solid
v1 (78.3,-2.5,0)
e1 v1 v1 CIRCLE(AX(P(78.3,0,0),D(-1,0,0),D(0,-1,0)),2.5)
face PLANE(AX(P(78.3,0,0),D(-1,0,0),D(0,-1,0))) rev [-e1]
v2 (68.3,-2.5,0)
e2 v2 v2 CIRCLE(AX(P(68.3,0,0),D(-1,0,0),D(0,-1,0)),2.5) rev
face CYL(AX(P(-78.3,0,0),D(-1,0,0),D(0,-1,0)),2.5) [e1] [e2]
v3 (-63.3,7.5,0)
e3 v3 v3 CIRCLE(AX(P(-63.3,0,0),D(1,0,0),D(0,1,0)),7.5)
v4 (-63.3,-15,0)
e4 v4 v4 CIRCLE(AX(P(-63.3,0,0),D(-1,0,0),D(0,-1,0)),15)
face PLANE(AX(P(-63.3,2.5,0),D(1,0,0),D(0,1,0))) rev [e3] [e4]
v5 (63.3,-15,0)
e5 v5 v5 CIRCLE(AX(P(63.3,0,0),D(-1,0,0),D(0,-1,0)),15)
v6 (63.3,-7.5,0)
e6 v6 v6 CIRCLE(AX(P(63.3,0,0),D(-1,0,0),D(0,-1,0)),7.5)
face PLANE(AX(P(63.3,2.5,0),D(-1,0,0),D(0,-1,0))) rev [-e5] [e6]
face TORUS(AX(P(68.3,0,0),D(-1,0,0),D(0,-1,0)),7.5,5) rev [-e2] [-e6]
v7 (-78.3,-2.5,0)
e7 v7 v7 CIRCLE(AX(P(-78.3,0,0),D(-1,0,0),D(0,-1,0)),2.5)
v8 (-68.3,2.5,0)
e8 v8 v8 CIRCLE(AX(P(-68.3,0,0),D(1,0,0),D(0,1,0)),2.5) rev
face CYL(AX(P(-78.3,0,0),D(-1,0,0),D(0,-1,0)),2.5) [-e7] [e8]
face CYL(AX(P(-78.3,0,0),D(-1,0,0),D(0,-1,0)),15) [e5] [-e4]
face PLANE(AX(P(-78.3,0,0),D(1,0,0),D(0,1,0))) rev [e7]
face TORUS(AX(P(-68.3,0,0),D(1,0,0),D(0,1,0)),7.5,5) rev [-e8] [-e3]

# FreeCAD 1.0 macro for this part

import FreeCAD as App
import Part
import Sketcher
from FreeCAD import Vector


def edges_at(feature, points):
    """Names of the edges that pass closest to the given points."""
    edges = feature.Shape.Edges
    near = lambda p: min(range(len(edges)), key=lambda i: edges[i].distToShape(Part.Vertex(*p))[0])
    return sorted({f"Edge{near(p) + 1}" for p in points})


def add_polygon(sketch, points):
    """Adds a closed chain of lines whose ends are joined by coincident constraints."""
    first, n = sketch.GeometryCount, len(points)
    for a, b in zip(points, points[1:] + points[:1]):
        sketch.addGeometry(Part.LineSegment(App.Vector(*a, 0), App.Vector(*b, 0)), False)
    for i in range(n):
        sketch.addConstraint(Sketcher.Constraint("Coincident", first + i, 2, first + (i + 1) % n, 1))

doc = App.newDocument("Part")
body = doc.addObject("PartDesign::Body", "Body")

# Sketch on XY plane
sketch1 = body.newObject("Sketcher::SketchObject", "Sketch")
sketch1.AttachmentSupport = (doc.getObject("XY_Plane"), [""])
sketch1.MapMode = "FlatFace"
add_polygon(sketch1, [(-78.3, 2.5), (-78.3, 0), (78.3, 0), (78.3, 2.5), (63.3, 2.5), (63.3, 15), (-63.3, 15), (-63.3, 2.5)])  # lines 0-7
sketch1.addConstraint(Sketcher.Constraint("Vertical", 0))
sketch1.addConstraint(Sketcher.Constraint("Horizontal", 1))
sketch1.addConstraint(Sketcher.Constraint("Vertical", 2))
sketch1.addConstraint(Sketcher.Constraint("Horizontal", 3))
sketch1.addConstraint(Sketcher.Constraint("Vertical", 4))
sketch1.addConstraint(Sketcher.Constraint("Horizontal", 5))
sketch1.addConstraint(Sketcher.Constraint("Vertical", 6))
sketch1.addConstraint(Sketcher.Constraint("Horizontal", 7))
sketch1.addConstraint(Sketcher.Constraint("Symmetric", 0, 2, 1, 2, -1, 1))
sketch1.addConstraint(Sketcher.Constraint("Symmetric", 3, 2, 6, 2, -2))
sketch1.addConstraint(Sketcher.Constraint("DistanceX", 3, 2, 3, 1, 15.0))
sketch1.addConstraint(Sketcher.Constraint("DistanceX", 1, 1, 1, 2, 156.6))
sketch1.addConstraint(Sketcher.Constraint("DistanceY", 0, 2, 0, 1, 2.5))
sketch1.addConstraint(Sketcher.Constraint("DistanceY", 4, 1, 4, 2, 12.5))
revolution = body.newObject("PartDesign::Revolution", "Revolution")
revolution.Profile = sketch1
revolution.ReferenceAxis = (sketch1, ["H_Axis"])
revolution.Angle = 360
doc.recompute()

fillet = body.newObject("PartDesign::Fillet", "Fillet")
fillet.Base = (revolution, edges_at(revolution, [(-63.3, 2.5, 0), (63.3, 2.5, 0)]))
fillet.Radius = 5

doc.recompute()
